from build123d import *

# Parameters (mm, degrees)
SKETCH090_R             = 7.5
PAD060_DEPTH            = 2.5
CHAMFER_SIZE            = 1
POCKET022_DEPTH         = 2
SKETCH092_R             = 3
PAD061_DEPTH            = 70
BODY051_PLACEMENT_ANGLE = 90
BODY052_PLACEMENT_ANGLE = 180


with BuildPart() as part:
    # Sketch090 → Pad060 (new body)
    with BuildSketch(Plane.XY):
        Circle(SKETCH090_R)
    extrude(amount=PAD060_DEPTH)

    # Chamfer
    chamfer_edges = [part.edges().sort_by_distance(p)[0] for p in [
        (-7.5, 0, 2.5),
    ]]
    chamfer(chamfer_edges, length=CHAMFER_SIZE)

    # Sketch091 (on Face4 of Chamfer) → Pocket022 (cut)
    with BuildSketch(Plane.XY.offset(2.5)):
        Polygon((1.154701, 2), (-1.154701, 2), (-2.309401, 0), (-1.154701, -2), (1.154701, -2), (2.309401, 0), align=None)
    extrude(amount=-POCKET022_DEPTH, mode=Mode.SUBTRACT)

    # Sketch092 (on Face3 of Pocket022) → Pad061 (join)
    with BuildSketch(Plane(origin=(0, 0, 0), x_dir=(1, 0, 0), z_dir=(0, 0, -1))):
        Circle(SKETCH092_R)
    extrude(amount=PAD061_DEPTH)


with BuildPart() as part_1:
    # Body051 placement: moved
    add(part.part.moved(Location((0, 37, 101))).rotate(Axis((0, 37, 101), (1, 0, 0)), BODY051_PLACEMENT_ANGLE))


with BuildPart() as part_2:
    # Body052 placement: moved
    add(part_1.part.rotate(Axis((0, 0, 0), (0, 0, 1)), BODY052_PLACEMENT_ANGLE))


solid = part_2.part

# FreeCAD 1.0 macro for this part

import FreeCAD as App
import Part
import Sketcher
Q = App.Units.Quantity


def edges_at(feature, points):
    """Names of the edges that pass closest to the given points."""
    edges = feature.Shape.Edges
    near = lambda p: min(range(len(edges)), key=lambda i: edges[i].distToShape(Part.Vertex(*p))[0])
    return sorted({f"Edge{near(p) + 1}" for p in points})

doc = App.newDocument("Part")
params = doc.addObject("Spreadsheet::Sheet", "Params")
for row, (alias, value) in enumerate([
    ("sketch1_diameter", "15 mm"),
    ("pad1_length", "2.5 mm"),
    ("chamfer_size", "1 mm"),
    ("pocket1_length", "2 mm"),
    ("sketch3_diameter", "6 mm"),
    ("pad2_length", "70 mm"),
], start=1):
    params.set(f"A{row}", alias)
    params.set(f"B{row}", "=" + value)
    params.setAlias(f"B{row}", alias)

body = doc.addObject("PartDesign::Body", "Body")

sketch1 = doc.addObject("Sketcher::SketchObject", "Sketch")
body.addObject(sketch1)
sketch1.AttachmentSupport = (doc.XY_Plane, [""])
sketch1.MapMode = "FlatFace"
sketch1.addGeometry(Part.Circle(App.Vector(0, 0, 0), App.Vector(0, 0, 1), 8), False)
sketch1.addConstraint([
    Sketcher.Constraint("Coincident", 0, 3, -1, 1),
    Sketcher.Constraint("Diameter", 0, Q("15 mm")),
])
sketch1.setExpression("Constraints[1]", "Params.sketch1_diameter")
pad1 = doc.addObject("PartDesign::Pad", "Pad")
body.addObject(pad1)
pad1.Profile = sketch1
pad1.setExpression("Length", "Params.pad1_length")
doc.recompute()

chamfer = doc.addObject("PartDesign::Chamfer", "Chamfer")
body.addObject(chamfer)
chamfer.Base = (pad1, edges_at(pad1, [(-7.5, 0, 2.5)]))
chamfer.setExpression("Size", "Params.chamfer_size")

sketch2 = doc.addObject("Sketcher::SketchObject", "Sketch001")
body.addObject(sketch2)
sketch2.AttachmentSupport = (doc.XY_Plane, [""])
sketch2.MapMode = "FlatFace"
sketch2.AttachmentOffset = App.Placement(App.Vector(0, 0, 2.5), App.Rotation())
sketch2.addGeometry([
    Part.LineSegment(App.Vector(1.2, 2, 0), App.Vector(-1.2, 2, 0)),
    Part.LineSegment(App.Vector(-1.2, 2, 0), App.Vector(-2.3, 0, 0)),
    Part.LineSegment(App.Vector(-2.3, 0, 0), App.Vector(-1.2, -2, 0)),
    Part.LineSegment(App.Vector(-1.2, -2, 0), App.Vector(1.2, -2, 0)),
    Part.LineSegment(App.Vector(1.2, -2, 0), App.Vector(2.3, 0, 0)),
    Part.LineSegment(App.Vector(2.3, 0, 0), App.Vector(1.2, 2, 0)),
], False)
sketch2.addConstraint([
    Sketcher.Constraint("Coincident", 0, 2, 1, 1),
    Sketcher.Constraint("Coincident", 1, 2, 2, 1),
    Sketcher.Constraint("Coincident", 2, 2, 3, 1),
    Sketcher.Constraint("Coincident", 3, 2, 4, 1),
    Sketcher.Constraint("Coincident", 4, 2, 5, 1),
    Sketcher.Constraint("Coincident", 5, 2, 0, 1),
    Sketcher.Constraint("Horizontal", 0),
    Sketcher.Constraint("Horizontal", 3),
    Sketcher.Constraint("Symmetric", 0, 2, 3, 2, -1, 1),
    Sketcher.Constraint("Symmetric", 1, 2, 4, 2, -1, 1),
    Sketcher.Constraint("PointOnObject", 1, 2, -1),
    Sketcher.Constraint("Parallel", 2, 5),
    Sketcher.Constraint("Vertical", 0, 2, 2, 2),
    Sketcher.Constraint("Angle", 1, Q("-119.999988 deg")),
    Sketcher.Constraint("DistanceY", -1, 1, 0, 2, Q("2 mm")),
    Sketcher.Constraint("DistanceX", 0, 2, 0, 1, Q("2.309402 mm")),
])
pocket1 = doc.addObject("PartDesign::Pocket", "Pocket")
body.addObject(pocket1)
pocket1.Profile = sketch2
pocket1.setExpression("Length", "Params.pocket1_length")

sketch3 = doc.addObject("Sketcher::SketchObject", "Sketch002")
body.addObject(sketch3)
sketch3.AttachmentSupport = (doc.XY_Plane, [""])
sketch3.MapMode = "FlatFace"
sketch3.addGeometry(Part.Circle(App.Vector(0, 0, 0), App.Vector(0, 0, 1), 3), False)
sketch3.addConstraint([
    Sketcher.Constraint("Coincident", 0, 3, -1, 1),
    Sketcher.Constraint("Diameter", 0, Q("6 mm")),
])
sketch3.setExpression("Constraints[1]", "Params.sketch3_diameter")
pad2 = doc.addObject("PartDesign::Pad", "Pad001")
body.addObject(pad2)
pad2.Profile = sketch3
pad2.setExpression("Length", "Params.pad2_length")
pad2.Reversed = True
body2 = doc.addObject("PartDesign::Body", "Body001")
doc.recompute()

body.Placement = App.Placement(App.Vector(0, 37, 101), App.Rotation(App.Vector(1, 0, 0), 90))
boolean = doc.addObject("PartDesign::Boolean", "Boolean")
body2.addObject(boolean)
boolean.Type = "Fuse"
boolean.addObjects([body])
body3 = doc.addObject("PartDesign::Body", "Body002")
doc.recompute()

body2.Placement = App.Placement(App.Vector(0, 0, 0), App.Rotation(App.Vector(0, 0, 1), 180))
boolean2 = doc.addObject("PartDesign::Boolean", "Boolean001")
body3.addObject(boolean2)
boolean2.Type = "Fuse"
boolean2.addObjects([body2])

doc.recompute()
